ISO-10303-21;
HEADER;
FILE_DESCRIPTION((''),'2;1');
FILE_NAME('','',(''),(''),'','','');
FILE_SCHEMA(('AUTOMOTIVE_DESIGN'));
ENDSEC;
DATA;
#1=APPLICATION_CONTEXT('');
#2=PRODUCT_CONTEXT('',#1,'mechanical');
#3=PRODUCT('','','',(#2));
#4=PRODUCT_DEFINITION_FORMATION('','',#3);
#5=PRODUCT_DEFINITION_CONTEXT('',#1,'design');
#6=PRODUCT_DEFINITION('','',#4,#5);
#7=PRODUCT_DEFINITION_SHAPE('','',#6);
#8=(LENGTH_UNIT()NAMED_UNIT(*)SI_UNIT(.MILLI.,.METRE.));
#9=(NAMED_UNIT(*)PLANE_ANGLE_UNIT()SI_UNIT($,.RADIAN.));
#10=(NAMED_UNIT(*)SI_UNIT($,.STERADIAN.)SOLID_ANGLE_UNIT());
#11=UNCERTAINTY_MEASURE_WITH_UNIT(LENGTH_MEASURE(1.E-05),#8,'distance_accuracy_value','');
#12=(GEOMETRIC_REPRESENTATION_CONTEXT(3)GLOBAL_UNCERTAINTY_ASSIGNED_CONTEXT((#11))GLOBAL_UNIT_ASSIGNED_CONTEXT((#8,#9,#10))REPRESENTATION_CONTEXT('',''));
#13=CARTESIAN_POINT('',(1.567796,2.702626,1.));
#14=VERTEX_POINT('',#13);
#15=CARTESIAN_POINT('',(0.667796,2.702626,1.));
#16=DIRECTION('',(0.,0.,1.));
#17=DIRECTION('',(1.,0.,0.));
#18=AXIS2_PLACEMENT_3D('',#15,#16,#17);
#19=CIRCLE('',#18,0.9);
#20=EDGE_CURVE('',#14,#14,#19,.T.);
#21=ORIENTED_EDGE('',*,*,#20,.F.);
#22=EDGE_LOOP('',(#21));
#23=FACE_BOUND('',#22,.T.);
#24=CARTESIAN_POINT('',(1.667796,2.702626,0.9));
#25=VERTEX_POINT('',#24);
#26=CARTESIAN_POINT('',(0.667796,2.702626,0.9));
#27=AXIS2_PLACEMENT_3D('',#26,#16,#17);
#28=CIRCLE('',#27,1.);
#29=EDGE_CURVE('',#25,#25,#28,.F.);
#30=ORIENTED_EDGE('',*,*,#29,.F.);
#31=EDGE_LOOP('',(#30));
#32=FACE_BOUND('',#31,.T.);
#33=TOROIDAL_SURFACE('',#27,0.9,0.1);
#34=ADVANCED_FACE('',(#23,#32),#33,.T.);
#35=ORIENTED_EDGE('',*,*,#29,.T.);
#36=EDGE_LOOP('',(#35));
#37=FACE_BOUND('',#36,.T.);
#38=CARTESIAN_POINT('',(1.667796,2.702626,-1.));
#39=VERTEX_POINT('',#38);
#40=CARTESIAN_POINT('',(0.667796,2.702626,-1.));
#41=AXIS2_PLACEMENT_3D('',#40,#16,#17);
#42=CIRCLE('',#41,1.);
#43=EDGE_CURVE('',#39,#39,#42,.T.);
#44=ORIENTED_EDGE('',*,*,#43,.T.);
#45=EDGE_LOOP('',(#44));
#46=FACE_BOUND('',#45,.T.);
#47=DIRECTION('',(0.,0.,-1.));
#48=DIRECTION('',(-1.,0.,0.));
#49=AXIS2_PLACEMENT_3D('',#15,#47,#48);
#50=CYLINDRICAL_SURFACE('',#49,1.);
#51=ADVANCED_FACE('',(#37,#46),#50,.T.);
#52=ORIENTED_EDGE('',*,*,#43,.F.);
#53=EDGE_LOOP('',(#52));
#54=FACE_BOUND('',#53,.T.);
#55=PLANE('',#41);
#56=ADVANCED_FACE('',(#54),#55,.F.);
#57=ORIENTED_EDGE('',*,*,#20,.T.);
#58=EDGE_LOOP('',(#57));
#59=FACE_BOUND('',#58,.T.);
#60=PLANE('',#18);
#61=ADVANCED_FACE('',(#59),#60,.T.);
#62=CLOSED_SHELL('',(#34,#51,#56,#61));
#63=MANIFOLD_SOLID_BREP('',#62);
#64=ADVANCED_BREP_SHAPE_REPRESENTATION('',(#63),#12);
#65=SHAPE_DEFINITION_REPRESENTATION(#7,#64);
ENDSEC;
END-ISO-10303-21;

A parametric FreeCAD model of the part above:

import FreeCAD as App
import Part
import Sketcher


def edges_at(feature, points):
    """Names of the edges that pass closest to the given points."""
    edges = feature.Shape.Edges
    near = lambda p: min(range(len(edges)), key=lambda i: edges[i].distToShape(Part.Vertex(*p))[0])
    return sorted({f"Edge{near(p) + 1}" for p in points})

doc = App.newDocument("Part")
body = doc.addObject("PartDesign::Body", "Body")

# Sketch on XY plane
sketch1 = body.newObject("Sketcher::SketchObject", "Sketch")
sketch1.AttachmentSupport = (doc.getObject("XY_Plane"), [""])
sketch1.MapMode = "FlatFace"
sketch1.addGeometry(Part.Circle(App.Vector(0.7, 2.7, 0), App.Vector(0, 0, 1), 1), False)
sketch1.addConstraint(Sketcher.Constraint("Diameter", 0, 2.0))
sketch1.addConstraint(Sketcher.Constraint("DistanceX", -1, 1, 0, 3, 0.667796))
sketch1.addConstraint(Sketcher.Constraint("DistanceY", -1, 1, 0, 3, 2.702626))
pad1 = body.newObject("PartDesign::Pad", "Pad")
pad1.Profile = sketch1
pad1.Length = 2
pad1.Midplane = True
doc.recompute()

fillet = body.newObject("PartDesign::Fillet", "Fillet")
fillet.Base = (pad1, edges_at(pad1, [(-0.332, 2.703, 1)]))
fillet.Radius = 0.1

doc.recompute()
